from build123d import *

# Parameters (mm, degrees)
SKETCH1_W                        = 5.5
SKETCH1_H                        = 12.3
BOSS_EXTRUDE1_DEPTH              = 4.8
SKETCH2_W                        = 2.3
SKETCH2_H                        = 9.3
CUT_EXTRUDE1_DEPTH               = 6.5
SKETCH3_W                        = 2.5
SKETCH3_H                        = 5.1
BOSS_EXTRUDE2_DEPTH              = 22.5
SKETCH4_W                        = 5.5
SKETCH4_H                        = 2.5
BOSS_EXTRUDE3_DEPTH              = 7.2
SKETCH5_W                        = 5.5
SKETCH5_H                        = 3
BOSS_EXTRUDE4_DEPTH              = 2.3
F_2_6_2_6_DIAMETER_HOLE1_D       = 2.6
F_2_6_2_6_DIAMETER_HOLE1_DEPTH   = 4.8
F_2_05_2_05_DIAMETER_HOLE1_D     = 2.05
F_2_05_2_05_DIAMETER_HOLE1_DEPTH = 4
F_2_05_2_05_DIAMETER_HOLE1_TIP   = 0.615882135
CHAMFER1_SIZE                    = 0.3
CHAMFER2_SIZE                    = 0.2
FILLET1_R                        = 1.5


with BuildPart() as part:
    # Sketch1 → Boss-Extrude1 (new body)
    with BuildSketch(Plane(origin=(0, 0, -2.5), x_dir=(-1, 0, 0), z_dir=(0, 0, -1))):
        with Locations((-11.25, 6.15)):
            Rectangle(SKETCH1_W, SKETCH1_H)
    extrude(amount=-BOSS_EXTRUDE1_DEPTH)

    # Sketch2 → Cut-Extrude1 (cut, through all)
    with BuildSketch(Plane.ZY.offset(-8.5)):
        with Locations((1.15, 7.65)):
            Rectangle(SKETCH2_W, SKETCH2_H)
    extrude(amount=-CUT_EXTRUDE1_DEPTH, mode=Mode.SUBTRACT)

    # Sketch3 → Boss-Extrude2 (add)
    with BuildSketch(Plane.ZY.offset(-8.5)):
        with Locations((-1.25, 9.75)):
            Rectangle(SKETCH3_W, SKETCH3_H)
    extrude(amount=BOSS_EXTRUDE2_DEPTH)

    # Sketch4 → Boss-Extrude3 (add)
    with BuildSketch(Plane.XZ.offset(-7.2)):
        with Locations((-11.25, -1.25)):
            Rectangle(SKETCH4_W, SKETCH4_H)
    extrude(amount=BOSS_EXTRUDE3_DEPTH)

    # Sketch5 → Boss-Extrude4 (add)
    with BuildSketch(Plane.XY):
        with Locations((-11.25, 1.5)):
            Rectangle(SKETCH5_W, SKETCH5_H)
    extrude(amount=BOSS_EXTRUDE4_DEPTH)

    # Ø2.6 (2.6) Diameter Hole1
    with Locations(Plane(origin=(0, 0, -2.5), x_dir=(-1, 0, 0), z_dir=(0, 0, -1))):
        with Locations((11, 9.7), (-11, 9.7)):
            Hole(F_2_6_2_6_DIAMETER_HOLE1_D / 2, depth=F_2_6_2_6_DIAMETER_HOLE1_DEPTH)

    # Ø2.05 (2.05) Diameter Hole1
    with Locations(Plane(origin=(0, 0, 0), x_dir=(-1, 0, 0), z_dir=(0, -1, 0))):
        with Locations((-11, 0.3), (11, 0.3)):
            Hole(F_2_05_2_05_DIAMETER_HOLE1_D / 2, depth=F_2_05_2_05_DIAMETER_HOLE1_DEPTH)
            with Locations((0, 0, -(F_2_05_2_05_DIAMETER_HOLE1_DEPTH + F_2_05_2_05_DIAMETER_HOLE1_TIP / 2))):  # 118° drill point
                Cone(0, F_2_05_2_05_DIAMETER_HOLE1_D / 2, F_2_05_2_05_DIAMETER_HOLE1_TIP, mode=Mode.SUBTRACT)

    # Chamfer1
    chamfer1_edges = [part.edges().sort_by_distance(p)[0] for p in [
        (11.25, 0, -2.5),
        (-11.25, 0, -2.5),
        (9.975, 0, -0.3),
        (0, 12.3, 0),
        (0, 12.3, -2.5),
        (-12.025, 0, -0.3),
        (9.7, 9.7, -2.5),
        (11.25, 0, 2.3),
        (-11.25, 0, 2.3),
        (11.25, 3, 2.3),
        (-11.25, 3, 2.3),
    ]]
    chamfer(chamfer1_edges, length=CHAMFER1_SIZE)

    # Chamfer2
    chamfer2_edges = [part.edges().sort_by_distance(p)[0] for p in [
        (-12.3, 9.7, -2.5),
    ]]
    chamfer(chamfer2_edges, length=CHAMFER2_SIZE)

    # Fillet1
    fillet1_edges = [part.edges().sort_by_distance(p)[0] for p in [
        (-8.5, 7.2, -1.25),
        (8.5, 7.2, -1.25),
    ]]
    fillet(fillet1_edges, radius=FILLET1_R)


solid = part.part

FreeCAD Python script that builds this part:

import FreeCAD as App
import Part
import Sketcher

V = App.Vector
Q = App.Units.Quantity


def edges_at(feature, points):
    """Names of the edges that pass closest to the given points."""
    edges = feature.Shape.Edges
    near = lambda p: min(range(len(edges)), key=lambda i: edges[i].distToShape(Part.Vertex(*p))[0])
    return sorted({f"Edge{near(p) + 1}" for p in points})


def add_polygon(sketch, points):
    """Adds a closed chain of lines whose ends are joined by coincident constraints."""
    first, n = sketch.GeometryCount, len(points)
    for a, b in zip(points, points[1:] + points[:1]):
        sketch.addGeometry(Part.LineSegment(App.Vector(*a, 0), App.Vector(*b, 0)), False)
    for i in range(n):
        sketch.addConstraint(Sketcher.Constraint("Coincident", first + i, 2, first + (i + 1) % n, 1))

doc = App.newDocument("Part")
params = doc.addObject("Spreadsheet::Sheet", "Params")
for row, (alias, value) in enumerate([
    ("sketch1_width", "5.5 mm"),
    ("sketch1_height", "12.3 mm"),
    ("pad1_length", "4.8 mm"),
    ("sketch2_width", "9.3 mm"),
    ("sketch2_height", "2.3 mm"),
    ("sketch3_width", "5.1 mm"),
    ("sketch3_height", "2.5 mm"),
    ("pad2_length", "22.5 mm"),
    ("sketch4_width", "5.5 mm"),
    ("sketch4_height", "2.5 mm"),
    ("pad3_length", "7.2 mm"),
    ("sketch5_height", "3 mm"),
    ("sketch5_width", "5.5 mm"),
    ("pad4_length", "2.3 mm"),
    ("sketch6_diameter", "2.6 mm"),
    ("hole_diameter", "2.6 mm"),
    ("hole_depth", "4.8 mm"),
    ("sketch7_diameter", "2.05 mm"),
    ("hole2_diameter", "2.05 mm"),
    ("hole2_depth", "4 mm"),
    ("chamfer_size", "0.3 mm"),
    ("chamfer2_size", "0.2 mm"),
    ("fillet_radius", "1.5 mm"),
], start=1):
    params.set(f"A{row}", alias)
    params.set(f"B{row}", "=" + value)
    params.setAlias(f"B{row}", alias)

body = doc.addObject("PartDesign::Body", "Body")

# Sketch on XY plane
sketch1 = body.newObject("Sketcher::SketchObject", "Sketch")
sketch1.AttachmentSupport = (doc.getObject("XY_Plane"), [""])
sketch1.MapMode = "FlatFace"
sketch1.AttachmentOffset = App.Placement(V(0, 0, -2.5), App.Rotation())
add_polygon(sketch1, [(14, 12.3), (14, 0), (8.5, 0), (8.5, 12.3)])  # lines 0-3
sketch1.addConstraint(Sketcher.Constraint("Vertical", 0))
sketch1.addConstraint(Sketcher.Constraint("Horizontal", 1))
sketch1.addConstraint(Sketcher.Constraint("Vertical", 2))
sketch1.addConstraint(Sketcher.Constraint("Horizontal", 3))
sketch1.addConstraint(Sketcher.Constraint("PointOnObject", 0, 2, -1))
sketch1.addConstraint(Sketcher.Constraint("DistanceX", 1, 2, 1, 1, Q("5.5 mm")))
sketch1.addConstraint(Sketcher.Constraint("DistanceY", 0, 2, 0, 1, Q("12.3 mm")))
sketch1.addConstraint(Sketcher.Constraint("DistanceX", -1, 1, 0, 2, Q("14 mm")))
sketch1.setExpression("Constraints[9]", "Params.sketch1_width")
sketch1.setExpression("Constraints[10]", "Params.sketch1_height")
pad1 = body.newObject("PartDesign::Pad", "Pad")
pad1.Profile = sketch1
pad1.setExpression("Length", "Params.pad1_length")

# Sketch on YZ plane
sketch2 = body.newObject("Sketcher::SketchObject", "Sketch001")
sketch2.AttachmentSupport = (doc.getObject("YZ_Plane"), [""])
sketch2.MapMode = "FlatFace"
sketch2.AttachmentOffset = App.Placement(V(0, 0, 8.5), App.Rotation())
add_polygon(sketch2, [(12.3, 0), (3, 0), (3, 2.3), (12.3, 2.3)])  # lines 0-3
sketch2.addConstraint(Sketcher.Constraint("Horizontal", 0))
sketch2.addConstraint(Sketcher.Constraint("Vertical", 1))
sketch2.addConstraint(Sketcher.Constraint("Horizontal", 2))
sketch2.addConstraint(Sketcher.Constraint("Vertical", 3))
sketch2.addConstraint(Sketcher.Constraint("PointOnObject", 0, 2, -1))
sketch2.addConstraint(Sketcher.Constraint("DistanceX", 0, 2, 0, 1, Q("9.3 mm")))
sketch2.addConstraint(Sketcher.Constraint("DistanceY", 1, 1, 1, 2, Q("2.3 mm")))
sketch2.addConstraint(Sketcher.Constraint("DistanceX", -1, 1, 0, 2, Q("3 mm")))
sketch2.setExpression("Constraints[9]", "Params.sketch2_width")
sketch2.setExpression("Constraints[10]", "Params.sketch2_height")
pocket1 = body.newObject("PartDesign::Pocket", "Pocket")
pocket1.Profile = sketch2
pocket1.Type = "ThroughAll"
pocket1.Reversed = True

# Sketch on YZ plane
sketch3 = body.newObject("Sketcher::SketchObject", "Sketch002")
sketch3.AttachmentSupport = (doc.getObject("YZ_Plane"), [""])
sketch3.MapMode = "FlatFace"
sketch3.AttachmentOffset = App.Placement(V(0, 0, 8.5), App.Rotation())
add_polygon(sketch3, [(12.3, -2.5), (7.2, -2.5), (7.2, 0), (12.3, 0)])  # lines 0-3
sketch3.addConstraint(Sketcher.Constraint("Horizontal", 0))
sketch3.addConstraint(Sketcher.Constraint("Vertical", 1))
sketch3.addConstraint(Sketcher.Constraint("Horizontal", 2))
sketch3.addConstraint(Sketcher.Constraint("Vertical", 3))
sketch3.addConstraint(Sketcher.Constraint("PointOnObject", 1, 2, -1))
sketch3.addConstraint(Sketcher.Constraint("DistanceX", 0, 2, 0, 1, Q("5.1 mm")))
sketch3.addConstraint(Sketcher.Constraint("DistanceY", 1, 1, 1, 2, Q("2.5 mm")))
sketch3.addConstraint(Sketcher.Constraint("DistanceX", -1, 1, 0, 2, Q("7.2 mm")))
sketch3.setExpression("Constraints[9]", "Params.sketch3_width")
sketch3.setExpression("Constraints[10]", "Params.sketch3_height")
pad2 = body.newObject("PartDesign::Pad", "Pad001")
pad2.Profile = sketch3
pad2.setExpression("Length", "Params.pad2_length")
pad2.Reversed = True

# Sketch on XZ plane
sketch4 = body.newObject("Sketcher::SketchObject", "Sketch003")
sketch4.AttachmentSupport = (doc.getObject("XZ_Plane"), [""])
sketch4.MapMode = "FlatFace"
sketch4.AttachmentOffset = App.Placement(V(0, 0, -7.2), App.Rotation())
add_polygon(sketch4, [(-14, 0), (-14, -2.5), (-8.5, -2.5), (-8.5, 0)])  # lines 0-3
sketch4.addConstraint(Sketcher.Constraint("Vertical", 0))
sketch4.addConstraint(Sketcher.Constraint("Horizontal", 1))
sketch4.addConstraint(Sketcher.Constraint("Vertical", 2))
sketch4.addConstraint(Sketcher.Constraint("Horizontal", 3))
sketch4.addConstraint(Sketcher.Constraint("PointOnObject", 2, 2, -1))
sketch4.addConstraint(Sketcher.Constraint("DistanceX", 1, 1, 1, 2, Q("5.5 mm")))
sketch4.addConstraint(Sketcher.Constraint("DistanceY", 0, 2, 0, 1, Q("2.5 mm")))
sketch4.addConstraint(Sketcher.Constraint("DistanceX", 0, 2, -1, 1, Q("14 mm")))
sketch4.setExpression("Constraints[9]", "Params.sketch4_width")
sketch4.setExpression("Constraints[10]", "Params.sketch4_height")
pad3 = body.newObject("PartDesign::Pad", "Pad002")
pad3.Profile = sketch4
pad3.setExpression("Length", "Params.pad3_length")

# Sketch on XY plane
sketch5 = body.newObject("Sketcher::SketchObject", "Sketch004")
sketch5.AttachmentSupport = (doc.getObject("XY_Plane"), [""])
sketch5.MapMode = "FlatFace"
add_polygon(sketch5, [(-14, 3), (-14, 0), (-8.5, 0), (-8.5, 3)])  # lines 0-3
sketch5.addConstraint(Sketcher.Constraint("Vertical", 0))
sketch5.addConstraint(Sketcher.Constraint("Horizontal", 1))
sketch5.addConstraint(Sketcher.Constraint("Vertical", 2))
sketch5.addConstraint(Sketcher.Constraint("Horizontal", 3))
sketch5.addConstraint(Sketcher.Constraint("PointOnObject", 0, 2, -1))
sketch5.addConstraint(Sketcher.Constraint("DistanceY", 0, 2, 0, 1, Q("3 mm")))
sketch5.addConstraint(Sketcher.Constraint("DistanceX", 1, 1, 1, 2, Q("5.5 mm")))
sketch5.addConstraint(Sketcher.Constraint("DistanceX", 0, 2, -1, 1, Q("14 mm")))
sketch5.setExpression("Constraints[9]", "Params.sketch5_height")
sketch5.setExpression("Constraints[10]", "Params.sketch5_width")
pad4 = body.newObject("PartDesign::Pad", "Pad003")
pad4.Profile = sketch5
pad4.setExpression("Length", "Params.pad4_length")

# Sketch on XY plane
sketch6 = body.newObject("Sketcher::SketchObject", "Sketch005")
sketch6.AttachmentSupport = (doc.getObject("XY_Plane"), [""])
sketch6.MapMode = "FlatFace"
sketch6.AttachmentOffset = App.Placement(V(0, 0, -2.5), App.Rotation())
sketch6.addGeometry(Part.Circle(V(-11, 9.7, 0), V(0, 0, 1), 1.3), False)
sketch6.addGeometry(Part.Circle(V(11, 9.7, 0), V(0, 0, 1), 1.3), False)
sketch6.addConstraint(Sketcher.Constraint("Equal", 0, 1))
sketch6.addConstraint(Sketcher.Constraint("Symmetric", 0, 3, 1, 3, -2))
sketch6.addConstraint(Sketcher.Constraint("Diameter", 0, Q("2.6 mm")))
sketch6.addConstraint(Sketcher.Constraint("DistanceX", 0, 3, -1, 1, Q("11 mm")))
sketch6.addConstraint(Sketcher.Constraint("DistanceY", -1, 1, 0, 3, Q("9.7 mm")))
sketch6.setExpression("Constraints[2]", "Params.sketch6_diameter")
doc.recompute()
hole = body.newObject("PartDesign::Hole", "Hole")
hole.Profile = sketch6
hole.ThreadType = "None"
hole.setExpression("Diameter", "Params.hole_diameter")
hole.DepthType = "Dimension"
hole.setExpression("Depth", "Params.hole_depth")
hole.DrillPoint = "Flat"
hole.Reversed = True

# Sketch on XZ plane
sketch7 = body.newObject("Sketcher::SketchObject", "Sketch006")
sketch7.AttachmentSupport = (doc.getObject("XZ_Plane"), [""])
sketch7.MapMode = "FlatFace"
sketch7.addGeometry(Part.Circle(V(11, -0.3, 0), V(0, 0, 1), 1.025), False)
sketch7.addGeometry(Part.Circle(V(-11, -0.3, 0), V(0, 0, 1), 1.025), False)
sketch7.addConstraint(Sketcher.Constraint("Equal", 0, 1))
sketch7.addConstraint(Sketcher.Constraint("Symmetric", 0, 3, 1, 3, -2))
sketch7.addConstraint(Sketcher.Constraint("Diameter", 0, Q("2.05 mm")))
sketch7.addConstraint(Sketcher.Constraint("DistanceX", -1, 1, 0, 3, Q("11 mm")))
sketch7.addConstraint(Sketcher.Constraint("DistanceY", 0, 3, -1, 1, Q("0.3 mm")))
sketch7.setExpression("Constraints[2]", "Params.sketch7_diameter")
doc.recompute()
hole2 = body.newObject("PartDesign::Hole", "Hole001")
hole2.Profile = sketch7
hole2.ThreadType = "None"
hole2.setExpression("Diameter", "Params.hole2_diameter")
hole2.DepthType = "Dimension"
hole2.setExpression("Depth", "Params.hole2_depth")
hole2.DrillPoint = "Angled"
hole2.DrillPointAngle = 118
doc.recompute()

chamfer = body.newObject("PartDesign::Chamfer", "Chamfer")
chamfer.Base = (hole2, edges_at(hole2, [
    (11.25, 0, -2.5),
    (-11.25, 0, -2.5),
    (9.975, 0, -0.3),
    (0, 12.3, 0),
    (0, 12.3, -2.5),
    (-12.025, 0, -0.3),
    (9.7, 9.7, -2.5),
    (11.25, 0, 2.3),
    (-11.25, 0, 2.3),
    (11.25, 3, 2.3),
    (-11.25, 3, 2.3),
]))
chamfer.setExpression("Size", "Params.chamfer_size")
doc.recompute()

chamfer2 = body.newObject("PartDesign::Chamfer", "Chamfer001")
chamfer2.Base = (chamfer, edges_at(chamfer, [(-12.3, 9.7, -2.5)]))
chamfer2.setExpression("Size", "Params.chamfer2_size")
doc.recompute()

fillet = body.newObject("PartDesign::Fillet", "Fillet")
fillet.Base = (chamfer2, edges_at(chamfer2, [(-8.5, 7.2, -1.25), (8.5, 7.2, -1.25)]))
fillet.setExpression("Radius", "Params.fillet_radius")

doc.recompute()
